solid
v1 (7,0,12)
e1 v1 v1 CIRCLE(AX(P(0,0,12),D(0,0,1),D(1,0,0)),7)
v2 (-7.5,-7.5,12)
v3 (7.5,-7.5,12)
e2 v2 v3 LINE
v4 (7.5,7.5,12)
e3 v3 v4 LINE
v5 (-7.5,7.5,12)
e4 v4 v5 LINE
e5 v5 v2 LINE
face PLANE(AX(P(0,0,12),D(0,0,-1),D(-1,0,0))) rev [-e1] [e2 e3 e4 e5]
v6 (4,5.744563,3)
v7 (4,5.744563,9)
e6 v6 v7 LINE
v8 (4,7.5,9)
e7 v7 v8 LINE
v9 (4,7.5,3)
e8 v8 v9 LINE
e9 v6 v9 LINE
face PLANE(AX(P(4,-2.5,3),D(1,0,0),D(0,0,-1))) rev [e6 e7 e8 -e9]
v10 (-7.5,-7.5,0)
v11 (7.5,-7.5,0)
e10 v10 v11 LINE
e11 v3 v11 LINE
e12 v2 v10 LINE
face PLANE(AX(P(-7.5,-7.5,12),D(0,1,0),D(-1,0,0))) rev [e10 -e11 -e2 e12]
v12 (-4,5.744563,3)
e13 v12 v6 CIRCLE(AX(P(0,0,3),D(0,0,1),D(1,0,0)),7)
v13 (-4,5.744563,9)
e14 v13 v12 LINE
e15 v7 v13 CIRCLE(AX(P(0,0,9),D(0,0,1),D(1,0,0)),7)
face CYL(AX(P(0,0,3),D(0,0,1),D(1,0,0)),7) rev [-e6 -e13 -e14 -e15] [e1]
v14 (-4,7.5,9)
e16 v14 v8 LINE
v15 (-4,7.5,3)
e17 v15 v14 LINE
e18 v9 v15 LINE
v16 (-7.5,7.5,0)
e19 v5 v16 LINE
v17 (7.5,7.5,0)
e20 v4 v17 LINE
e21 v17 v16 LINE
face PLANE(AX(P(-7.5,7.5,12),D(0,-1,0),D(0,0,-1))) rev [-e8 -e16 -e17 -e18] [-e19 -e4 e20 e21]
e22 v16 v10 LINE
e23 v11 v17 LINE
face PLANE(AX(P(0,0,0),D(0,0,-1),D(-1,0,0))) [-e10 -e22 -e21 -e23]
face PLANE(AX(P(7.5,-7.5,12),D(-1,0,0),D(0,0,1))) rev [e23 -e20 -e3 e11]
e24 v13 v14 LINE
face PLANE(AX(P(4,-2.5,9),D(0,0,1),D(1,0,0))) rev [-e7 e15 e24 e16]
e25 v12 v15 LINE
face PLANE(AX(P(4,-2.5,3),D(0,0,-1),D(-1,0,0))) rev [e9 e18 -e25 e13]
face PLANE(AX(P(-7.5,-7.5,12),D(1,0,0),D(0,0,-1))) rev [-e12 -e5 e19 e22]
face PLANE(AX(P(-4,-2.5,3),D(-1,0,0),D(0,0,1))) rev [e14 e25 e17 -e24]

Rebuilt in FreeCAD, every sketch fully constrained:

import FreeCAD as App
import Part
import Sketcher
from FreeCAD import Vector
Q = App.Units.Quantity


def add_polygon(sketch, points):
    """Adds a closed chain of lines whose ends are joined by coincident constraints."""
    first, n = sketch.GeometryCount, len(points)
    for a, b in zip(points, points[1:] + points[:1]):
        sketch.addGeometry(Part.LineSegment(App.Vector(*a, 0), App.Vector(*b, 0)), False)
    for i in range(n):
        sketch.addConstraint(Sketcher.Constraint("Coincident", first + i, 2, first + (i + 1) % n, 1))

doc = App.newDocument("Part")
body = doc.addObject("PartDesign::Body", "Body")

# Sketch on XY plane
sketch1 = body.newObject("Sketcher::SketchObject", "Sketch")
sketch1.AttachmentSupport = (doc.getObject("XY_Plane"), [""])
sketch1.MapMode = "FlatFace"
add_polygon(sketch1, [(-7.5, 7.5), (-7.5, -7.5), (7.5, -7.5), (7.5, 7.5)])  # lines 0-3
sketch1.addConstraint(Sketcher.Constraint("Vertical", 0))
sketch1.addConstraint(Sketcher.Constraint("Horizontal", 1))
sketch1.addConstraint(Sketcher.Constraint("Vertical", 2))
sketch1.addConstraint(Sketcher.Constraint("Horizontal", 3))
sketch1.addConstraint(Sketcher.Constraint("Symmetric", 0, 2, 2, 2, -1, 1))
sketch1.addConstraint(Sketcher.Constraint("Equal", 3, 0))
sketch1.addConstraint(Sketcher.Constraint("DistanceX", 1, 1, 1, 2, Q("15 mm")))
pad1 = body.newObject("PartDesign::Pad", "Pad")
pad1.Profile = sketch1
pad1.Length = 12

# Sketch on XZ plane
sketch2 = body.newObject("Sketcher::SketchObject", "Sketch001")
sketch2.AttachmentSupport = (doc.getObject("XZ_Plane"), [""])
sketch2.MapMode = "FlatFace"
sketch2.AttachmentOffset = App.Placement(Vector(0, 0, -7.5), App.Rotation())
add_polygon(sketch2, [(-4, 3), (-4, 9), (4, 9), (4, 3)])  # lines 0-3
sketch2.addConstraint(Sketcher.Constraint("Vertical", 0))
sketch2.addConstraint(Sketcher.Constraint("Horizontal", 1))
sketch2.addConstraint(Sketcher.Constraint("Vertical", 2))
sketch2.addConstraint(Sketcher.Constraint("Horizontal", 3))
sketch2.addConstraint(Sketcher.Constraint("DistanceX", 1, 1, 1, 2, Q("8 mm")))
sketch2.addConstraint(Sketcher.Constraint("DistanceY", 0, 1, 0, 2, Q("6 mm")))
sketch2.addConstraint(Sketcher.Constraint("DistanceX", 0, 2, -1, 1, Q("4 mm")))
sketch2.addConstraint(Sketcher.Constraint("DistanceY", -1, 1, 0, 2, Q("9 mm")))
pocket1 = body.newObject("PartDesign::Pocket", "Pocket")
pocket1.Profile = sketch2
pocket1.Length = 10
pocket1.Reversed = True

# Sketch on XY plane
sketch3 = body.newObject("Sketcher::SketchObject", "Sketch002")
sketch3.AttachmentSupport = (doc.getObject("XY_Plane"), [""])
sketch3.MapMode = "FlatFace"
sketch3.AttachmentOffset = App.Placement(Vector(0, 0, 12), App.Rotation())
sketch3.addGeometry(Part.Circle(Vector(0, 0, 0), Vector(0, 0, 1), 7), False)
sketch3.addConstraint(Sketcher.Constraint("Coincident", 0, 3, -1, 1))
sketch3.addConstraint(Sketcher.Constraint("Diameter", 0, Q("14 mm")))
pocket2 = body.newObject("PartDesign::Pocket", "Pocket001")
pocket2.Profile = sketch3
pocket2.Length = 9

doc.recompute()
